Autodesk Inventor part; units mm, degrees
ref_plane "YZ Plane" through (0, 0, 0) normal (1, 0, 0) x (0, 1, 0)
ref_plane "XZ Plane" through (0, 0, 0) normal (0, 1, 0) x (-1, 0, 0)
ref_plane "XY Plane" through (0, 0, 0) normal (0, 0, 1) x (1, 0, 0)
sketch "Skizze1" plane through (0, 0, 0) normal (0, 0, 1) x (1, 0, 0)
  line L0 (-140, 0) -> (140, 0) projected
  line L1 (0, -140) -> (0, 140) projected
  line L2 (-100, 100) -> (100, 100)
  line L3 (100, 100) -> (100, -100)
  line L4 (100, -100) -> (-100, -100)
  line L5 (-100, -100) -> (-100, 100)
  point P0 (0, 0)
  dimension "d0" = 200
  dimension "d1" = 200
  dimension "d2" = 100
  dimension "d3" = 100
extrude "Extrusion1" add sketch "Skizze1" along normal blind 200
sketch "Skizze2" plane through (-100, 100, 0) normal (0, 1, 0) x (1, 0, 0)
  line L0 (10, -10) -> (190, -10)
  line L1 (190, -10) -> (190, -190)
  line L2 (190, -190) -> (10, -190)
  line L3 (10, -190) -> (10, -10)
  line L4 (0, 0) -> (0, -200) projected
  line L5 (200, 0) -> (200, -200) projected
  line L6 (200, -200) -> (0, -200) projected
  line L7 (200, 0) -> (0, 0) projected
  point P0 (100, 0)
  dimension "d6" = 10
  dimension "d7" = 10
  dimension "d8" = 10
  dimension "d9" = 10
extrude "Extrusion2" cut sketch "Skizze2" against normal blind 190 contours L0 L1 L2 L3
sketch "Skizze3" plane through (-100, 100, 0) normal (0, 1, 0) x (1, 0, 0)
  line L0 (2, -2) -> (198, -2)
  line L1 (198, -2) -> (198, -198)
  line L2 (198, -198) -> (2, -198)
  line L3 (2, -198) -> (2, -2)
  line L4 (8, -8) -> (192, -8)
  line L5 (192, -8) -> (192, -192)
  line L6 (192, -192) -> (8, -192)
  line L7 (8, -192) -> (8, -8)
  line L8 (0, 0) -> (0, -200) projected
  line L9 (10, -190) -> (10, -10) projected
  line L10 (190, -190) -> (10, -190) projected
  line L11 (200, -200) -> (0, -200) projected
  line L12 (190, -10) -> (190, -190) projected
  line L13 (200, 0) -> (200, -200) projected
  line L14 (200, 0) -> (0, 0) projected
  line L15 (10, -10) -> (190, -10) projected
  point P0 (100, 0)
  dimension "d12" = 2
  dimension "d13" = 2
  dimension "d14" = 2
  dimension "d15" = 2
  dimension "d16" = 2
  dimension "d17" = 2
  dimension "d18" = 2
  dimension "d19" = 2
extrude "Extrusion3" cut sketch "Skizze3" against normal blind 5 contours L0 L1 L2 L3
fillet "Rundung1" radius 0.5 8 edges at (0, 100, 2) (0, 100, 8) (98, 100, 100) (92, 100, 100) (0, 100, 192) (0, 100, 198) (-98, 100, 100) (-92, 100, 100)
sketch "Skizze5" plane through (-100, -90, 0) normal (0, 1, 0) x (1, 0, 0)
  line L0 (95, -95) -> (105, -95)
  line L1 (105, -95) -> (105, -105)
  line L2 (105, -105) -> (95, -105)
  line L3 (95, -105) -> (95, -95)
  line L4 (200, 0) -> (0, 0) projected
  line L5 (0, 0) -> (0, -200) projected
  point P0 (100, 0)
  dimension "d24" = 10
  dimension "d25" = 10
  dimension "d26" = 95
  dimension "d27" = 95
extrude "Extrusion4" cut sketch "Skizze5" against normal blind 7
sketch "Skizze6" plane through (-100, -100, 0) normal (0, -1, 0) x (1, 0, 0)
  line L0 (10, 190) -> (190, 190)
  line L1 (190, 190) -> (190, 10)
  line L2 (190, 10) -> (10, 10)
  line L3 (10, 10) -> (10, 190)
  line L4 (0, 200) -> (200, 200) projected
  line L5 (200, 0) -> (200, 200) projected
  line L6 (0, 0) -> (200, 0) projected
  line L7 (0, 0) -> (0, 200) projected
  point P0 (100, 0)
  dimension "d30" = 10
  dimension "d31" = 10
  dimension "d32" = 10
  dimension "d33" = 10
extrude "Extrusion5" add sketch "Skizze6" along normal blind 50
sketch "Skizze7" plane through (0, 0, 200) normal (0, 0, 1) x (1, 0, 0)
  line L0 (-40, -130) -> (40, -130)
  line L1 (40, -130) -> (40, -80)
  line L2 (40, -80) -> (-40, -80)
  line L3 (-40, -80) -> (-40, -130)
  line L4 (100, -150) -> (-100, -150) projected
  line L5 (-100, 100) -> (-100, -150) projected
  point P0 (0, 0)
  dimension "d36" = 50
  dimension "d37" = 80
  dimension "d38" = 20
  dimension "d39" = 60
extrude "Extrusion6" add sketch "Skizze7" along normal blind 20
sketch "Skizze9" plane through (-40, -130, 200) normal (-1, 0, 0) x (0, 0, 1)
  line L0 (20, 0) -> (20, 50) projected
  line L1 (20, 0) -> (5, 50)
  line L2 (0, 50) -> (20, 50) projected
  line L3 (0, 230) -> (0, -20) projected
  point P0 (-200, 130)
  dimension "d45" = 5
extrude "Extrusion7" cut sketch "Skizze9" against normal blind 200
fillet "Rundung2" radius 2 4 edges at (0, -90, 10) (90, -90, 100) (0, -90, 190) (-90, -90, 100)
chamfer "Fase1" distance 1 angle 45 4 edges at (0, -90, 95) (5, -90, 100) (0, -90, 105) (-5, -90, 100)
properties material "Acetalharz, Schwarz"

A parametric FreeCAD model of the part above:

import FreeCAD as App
import Part
import Sketcher
Q = App.Units.Quantity


def edges_at(feature, points):
    """Names of the edges that pass closest to the given points."""
    edges = feature.Shape.Edges
    near = lambda p: min(range(len(edges)), key=lambda i: edges[i].distToShape(Part.Vertex(*p))[0])
    return sorted({f"Edge{near(p) + 1}" for p in points})

doc = App.newDocument("Part")
body = doc.addObject("PartDesign::Body", "Body")

# Sketch on XY plane
sketch1 = body.newObject("Sketcher::SketchObject", "Sketch")
sketch1.AttachmentSupport = (doc.getObject("XY_Plane"), [""])
sketch1.MapMode = "FlatFace"
sketch1.addGeometry([
    Part.LineSegment(App.Vector(-100, 100, 0), App.Vector(-100, -100, 0)),
    Part.LineSegment(App.Vector(-100, -100, 0), App.Vector(100, -100, 0)),
    Part.LineSegment(App.Vector(100, -100, 0), App.Vector(100, 100, 0)),
    Part.LineSegment(App.Vector(100, 100, 0), App.Vector(-100, 100, 0)),
], False)
sketch1.addConstraint([
    Sketcher.Constraint("Coincident", 0, 2, 1, 1),
    Sketcher.Constraint("Coincident", 1, 2, 2, 1),
    Sketcher.Constraint("Coincident", 2, 2, 3, 1),
    Sketcher.Constraint("Coincident", 3, 2, 0, 1),
    Sketcher.Constraint("Vertical", 0),
    Sketcher.Constraint("Horizontal", 1),
    Sketcher.Constraint("Vertical", 2),
    Sketcher.Constraint("Horizontal", 3),
    Sketcher.Constraint("Symmetric", 0, 2, 2, 2, -1, 1),
    Sketcher.Constraint("Equal", 3, 0),
    Sketcher.Constraint("DistanceX", 1, 1, 1, 2, Q("200 mm")),
])
pad1 = body.newObject("PartDesign::Pad", "Pad")
pad1.Profile = sketch1
pad1.Length = 200

# Sketch on XZ plane
sketch2 = body.newObject("Sketcher::SketchObject", "Sketch001")
sketch2.AttachmentSupport = (doc.getObject("XZ_Plane"), [""])
sketch2.MapMode = "FlatFace"
sketch2.AttachmentOffset = App.Placement(App.Vector(0, 0, -100), App.Rotation())
sketch2.addGeometry([
    Part.LineSegment(App.Vector(90, 10, 0), App.Vector(-90, 10, 0)),
    Part.LineSegment(App.Vector(-90, 10, 0), App.Vector(-90, 190, 0)),
    Part.LineSegment(App.Vector(-90, 190, 0), App.Vector(90, 190, 0)),
    Part.LineSegment(App.Vector(90, 190, 0), App.Vector(90, 10, 0)),
], False)
sketch2.addConstraint([
    Sketcher.Constraint("Coincident", 0, 2, 1, 1),
    Sketcher.Constraint("Coincident", 1, 2, 2, 1),
    Sketcher.Constraint("Coincident", 2, 2, 3, 1),
    Sketcher.Constraint("Coincident", 3, 2, 0, 1),
    Sketcher.Constraint("Horizontal", 0),
    Sketcher.Constraint("Vertical", 1),
    Sketcher.Constraint("Horizontal", 2),
    Sketcher.Constraint("Vertical", 3),
    Sketcher.Constraint("Equal", 2, 1),
    Sketcher.Constraint("DistanceY", -1, 1, 0, 2, Q("10 mm")),
    Sketcher.Constraint("DistanceX", 0, 2, 0, 1, Q("180 mm")),
    Sketcher.Constraint("DistanceX", 0, 2, -1, 1, Q("90 mm")),
])
pocket1 = body.newObject("PartDesign::Pocket", "Pocket")
pocket1.Profile = sketch2
pocket1.Length = 190
pocket1.Reversed = True

# Sketch on XZ plane
sketch3 = body.newObject("Sketcher::SketchObject", "Sketch002")
sketch3.AttachmentSupport = (doc.getObject("XZ_Plane"), [""])
sketch3.MapMode = "FlatFace"
sketch3.AttachmentOffset = App.Placement(App.Vector(0, 0, -100), App.Rotation())
sketch3.addGeometry([
    Part.LineSegment(App.Vector(98, 2, 0), App.Vector(-98, 2, 0)),  # 0
    Part.LineSegment(App.Vector(-98, 2, 0), App.Vector(-98, 198, 0)),  # 1
    Part.LineSegment(App.Vector(-98, 198, 0), App.Vector(98, 198, 0)),  # 2
    Part.LineSegment(App.Vector(98, 198, 0), App.Vector(98, 2, 0)),  # 3
    Part.LineSegment(App.Vector(-92, 192, 0), App.Vector(-92, 8, 0)),  # 4
    Part.LineSegment(App.Vector(-92, 8, 0), App.Vector(92, 8, 0)),  # 5
    Part.LineSegment(App.Vector(92, 8, 0), App.Vector(92, 192, 0)),  # 6
    Part.LineSegment(App.Vector(92, 192, 0), App.Vector(-92, 192, 0)),  # 7
], False)
sketch3.addConstraint([
    Sketcher.Constraint("Coincident", 0, 2, 1, 1),
    Sketcher.Constraint("Coincident", 1, 2, 2, 1),
    Sketcher.Constraint("Coincident", 2, 2, 3, 1),
    Sketcher.Constraint("Coincident", 3, 2, 0, 1),
    Sketcher.Constraint("Coincident", 4, 2, 5, 1),
    Sketcher.Constraint("Coincident", 5, 2, 6, 1),
    Sketcher.Constraint("Coincident", 6, 2, 7, 1),
    Sketcher.Constraint("Coincident", 7, 2, 4, 1),
    Sketcher.Constraint("Horizontal", 0),
    Sketcher.Constraint("Vertical", 1),
    Sketcher.Constraint("Horizontal", 2),
    Sketcher.Constraint("Vertical", 3),
    Sketcher.Constraint("Vertical", 4),
    Sketcher.Constraint("Horizontal", 5),
    Sketcher.Constraint("Vertical", 6),
    Sketcher.Constraint("Horizontal", 7),
    Sketcher.Constraint("Equal", 2, 1),
    Sketcher.Constraint("Equal", 7, 4),
    Sketcher.Constraint("DistanceY", -1, 1, 0, 2, Q("2 mm")),
    Sketcher.Constraint("DistanceX", 0, 2, 0, 1, Q("196 mm")),
    Sketcher.Constraint("DistanceX", 5, 1, 5, 2, Q("184 mm")),
    Sketcher.Constraint("DistanceX", 0, 2, -1, 1, Q("98 mm")),
    Sketcher.Constraint("DistanceX", 4, 2, -1, 1, Q("92 mm")),
    Sketcher.Constraint("DistanceY", -1, 1, 4, 2, Q("8 mm")),
])
pocket2 = body.newObject("PartDesign::Pocket", "Pocket001")
pocket2.Profile = sketch3
pocket2.Length = 5
pocket2.Reversed = True
doc.recompute()

fillet = body.newObject("PartDesign::Fillet", "Fillet")
fillet.Base = (pocket2, edges_at(pocket2, [
    (0, 100, 2),
    (0, 100, 8),
    (98, 100, 100),
    (92, 100, 100),
    (0, 100, 192),
    (0, 100, 198),
    (-98, 100, 100),
    (-92, 100, 100),
]))
fillet.Radius = 0.5

# Sketch on XZ plane
sketch4 = body.newObject("Sketcher::SketchObject", "Sketch003")
sketch4.AttachmentSupport = (doc.getObject("XZ_Plane"), [""])
sketch4.MapMode = "FlatFace"
sketch4.AttachmentOffset = App.Placement(App.Vector(0, 0, 90), App.Rotation())
sketch4.addGeometry([
    Part.LineSegment(App.Vector(5, 95, 0), App.Vector(-5, 95, 0)),
    Part.LineSegment(App.Vector(-5, 95, 0), App.Vector(-5, 105, 0)),
    Part.LineSegment(App.Vector(-5, 105, 0), App.Vector(5, 105, 0)),
    Part.LineSegment(App.Vector(5, 105, 0), App.Vector(5, 95, 0)),
], False)
sketch4.addConstraint([
    Sketcher.Constraint("Coincident", 0, 2, 1, 1),
    Sketcher.Constraint("Coincident", 1, 2, 2, 1),
    Sketcher.Constraint("Coincident", 2, 2, 3, 1),
    Sketcher.Constraint("Coincident", 3, 2, 0, 1),
    Sketcher.Constraint("Horizontal", 0),
    Sketcher.Constraint("Vertical", 1),
    Sketcher.Constraint("Horizontal", 2),
    Sketcher.Constraint("Vertical", 3),
    Sketcher.Constraint("Equal", 2, 1),
    Sketcher.Constraint("DistanceX", 0, 2, 0, 1, Q("10 mm")),
    Sketcher.Constraint("DistanceY", -1, 1, 0, 2, Q("95 mm")),
    Sketcher.Constraint("DistanceX", 0, 2, -1, 1, Q("5 mm")),
])
pocket3 = body.newObject("PartDesign::Pocket", "Pocket002")
pocket3.Profile = sketch4
pocket3.Length = 7
pocket3.Reversed = True

# Sketch on XZ plane
sketch5 = body.newObject("Sketcher::SketchObject", "Sketch004")
sketch5.AttachmentSupport = (doc.getObject("XZ_Plane"), [""])
sketch5.MapMode = "FlatFace"
sketch5.AttachmentOffset = App.Placement(App.Vector(0, 0, 100), App.Rotation())
sketch5.addGeometry([
    Part.LineSegment(App.Vector(100, 200, 0), App.Vector(-100, 200, 0)),  # 0
    Part.LineSegment(App.Vector(-100, 200, 0), App.Vector(-100, 0, 0)),  # 1
    Part.LineSegment(App.Vector(-100, 0, 0), App.Vector(100, 0, 0)),  # 2
    Part.LineSegment(App.Vector(100, 0, 0), App.Vector(100, 200, 0)),  # 3
    Part.LineSegment(App.Vector(-90, 10, 0), App.Vector(-90, 190, 0)),  # 4
    Part.LineSegment(App.Vector(-90, 190, 0), App.Vector(90, 190, 0)),  # 5
    Part.LineSegment(App.Vector(90, 190, 0), App.Vector(90, 10, 0)),  # 6
    Part.LineSegment(App.Vector(90, 10, 0), App.Vector(-90, 10, 0)),  # 7
], False)
sketch5.addConstraint([
    Sketcher.Constraint("Coincident", 0, 2, 1, 1),
    Sketcher.Constraint("Coincident", 1, 2, 2, 1),
    Sketcher.Constraint("Coincident", 2, 2, 3, 1),
    Sketcher.Constraint("Coincident", 3, 2, 0, 1),
    Sketcher.Constraint("Coincident", 4, 2, 5, 1),
    Sketcher.Constraint("Coincident", 5, 2, 6, 1),
    Sketcher.Constraint("Coincident", 6, 2, 7, 1),
    Sketcher.Constraint("Coincident", 7, 2, 4, 1),
    Sketcher.Constraint("Horizontal", 0),
    Sketcher.Constraint("Vertical", 1),
    Sketcher.Constraint("Horizontal", 2),
    Sketcher.Constraint("Vertical", 3),
    Sketcher.Constraint("Vertical", 4),
    Sketcher.Constraint("Horizontal", 5),
    Sketcher.Constraint("Vertical", 6),
    Sketcher.Constraint("Horizontal", 7),
    Sketcher.Constraint("Symmetric", 1, 2, 2, 2, -1, 1),
    Sketcher.Constraint("Equal", 2, 1),
    Sketcher.Constraint("Equal", 7, 4),
    Sketcher.Constraint("DistanceY", -1, 1, 6, 2, Q("10 mm")),
    Sketcher.Constraint("DistanceX", 0, 2, 4, 2, Q("10 mm")),
    Sketcher.Constraint("DistanceY", 4, 2, 0, 2, Q("10 mm")),
    Sketcher.Constraint("DistanceX", 0, 2, 0, 1, Q("200 mm")),
])
pad2 = body.newObject("PartDesign::Pad", "Pad001")
pad2.Profile = sketch5
pad2.Length = 50

# Sketch on XY plane
sketch6 = body.newObject("Sketcher::SketchObject", "Sketch005")
sketch6.AttachmentSupport = (doc.getObject("XY_Plane"), [""])
sketch6.MapMode = "FlatFace"
sketch6.AttachmentOffset = App.Placement(App.Vector(0, 0, 200), App.Rotation())
sketch6.addGeometry([
    Part.LineSegment(App.Vector(-40, -80, 0), App.Vector(-40, -130, 0)),
    Part.LineSegment(App.Vector(-40, -130, 0), App.Vector(40, -130, 0)),
    Part.LineSegment(App.Vector(40, -130, 0), App.Vector(40, -80, 0)),
    Part.LineSegment(App.Vector(40, -80, 0), App.Vector(-40, -80, 0)),
], False)
sketch6.addConstraint([
    Sketcher.Constraint("Coincident", 0, 2, 1, 1),
    Sketcher.Constraint("Coincident", 1, 2, 2, 1),
    Sketcher.Constraint("Coincident", 2, 2, 3, 1),
    Sketcher.Constraint("Coincident", 3, 2, 0, 1),
    Sketcher.Constraint("Vertical", 0),
    Sketcher.Constraint("Horizontal", 1),
    Sketcher.Constraint("Vertical", 2),
    Sketcher.Constraint("Horizontal", 3),
    Sketcher.Constraint("DistanceX", 1, 1, 1, 2, Q("80 mm")),
    Sketcher.Constraint("DistanceY", 0, 2, 0, 1, Q("50 mm")),
    Sketcher.Constraint("DistanceY", 2, 2, -1, 1, Q("80 mm")),
    Sketcher.Constraint("DistanceX", 0, 2, -1, 1, Q("40 mm")),
])
pad3 = body.newObject("PartDesign::Pad", "Pad002")
pad3.Profile = sketch6
pad3.Length = 20

# Sketch on YZ plane
sketch7 = body.newObject("Sketcher::SketchObject", "Sketch006")
sketch7.AttachmentSupport = (doc.getObject("YZ_Plane"), [""])
sketch7.MapMode = "FlatFace"
sketch7.AttachmentOffset = App.Placement(App.Vector(0, 0, -40), App.Rotation())
sketch7.addGeometry([
    Part.LineSegment(App.Vector(-80, 205, 0), App.Vector(-130, 220, 0)),
    Part.LineSegment(App.Vector(-130, 220, 0), App.Vector(-80, 220, 0)),
    Part.LineSegment(App.Vector(-80, 220, 0), App.Vector(-80, 205, 0)),
], False)
sketch7.addConstraint([
    Sketcher.Constraint("Coincident", 0, 2, 1, 1),
    Sketcher.Constraint("Coincident", 1, 2, 2, 1),
    Sketcher.Constraint("Coincident", 2, 2, 0, 1),
    Sketcher.Constraint("Horizontal", 1),
    Sketcher.Constraint("Vertical", 2),
    Sketcher.Constraint("DistanceX", 1, 1, 1, 2, Q("50 mm")),
    Sketcher.Constraint("DistanceY", 2, 2, 2, 1, Q("15 mm")),
    Sketcher.Constraint("DistanceX", 0, 2, -1, 1, Q("130 mm")),
    Sketcher.Constraint("DistanceY", -1, 1, 0, 2, Q("220 mm")),
])
pocket4 = body.newObject("PartDesign::Pocket", "Pocket003")
pocket4.Profile = sketch7
pocket4.Length = 200
pocket4.Reversed = True
doc.recompute()

fillet2 = body.newObject("PartDesign::Fillet", "Fillet001")
fillet2.Base = (pocket4, edges_at(pocket4, [
    (0, -90, 10),
    (90, -90, 100),
    (0, -90, 190),
    (-90, -90, 100),
]))
fillet2.Radius = 2
doc.recompute()

chamfer = body.newObject("PartDesign::Chamfer", "Chamfer")
chamfer.Base = (fillet2, edges_at(fillet2, [
    (0, -90, 95),
    (5, -90, 100),
    (0, -90, 105),
    (-5, -90, 100),
]))
chamfer.Size = 1

doc.recompute()
